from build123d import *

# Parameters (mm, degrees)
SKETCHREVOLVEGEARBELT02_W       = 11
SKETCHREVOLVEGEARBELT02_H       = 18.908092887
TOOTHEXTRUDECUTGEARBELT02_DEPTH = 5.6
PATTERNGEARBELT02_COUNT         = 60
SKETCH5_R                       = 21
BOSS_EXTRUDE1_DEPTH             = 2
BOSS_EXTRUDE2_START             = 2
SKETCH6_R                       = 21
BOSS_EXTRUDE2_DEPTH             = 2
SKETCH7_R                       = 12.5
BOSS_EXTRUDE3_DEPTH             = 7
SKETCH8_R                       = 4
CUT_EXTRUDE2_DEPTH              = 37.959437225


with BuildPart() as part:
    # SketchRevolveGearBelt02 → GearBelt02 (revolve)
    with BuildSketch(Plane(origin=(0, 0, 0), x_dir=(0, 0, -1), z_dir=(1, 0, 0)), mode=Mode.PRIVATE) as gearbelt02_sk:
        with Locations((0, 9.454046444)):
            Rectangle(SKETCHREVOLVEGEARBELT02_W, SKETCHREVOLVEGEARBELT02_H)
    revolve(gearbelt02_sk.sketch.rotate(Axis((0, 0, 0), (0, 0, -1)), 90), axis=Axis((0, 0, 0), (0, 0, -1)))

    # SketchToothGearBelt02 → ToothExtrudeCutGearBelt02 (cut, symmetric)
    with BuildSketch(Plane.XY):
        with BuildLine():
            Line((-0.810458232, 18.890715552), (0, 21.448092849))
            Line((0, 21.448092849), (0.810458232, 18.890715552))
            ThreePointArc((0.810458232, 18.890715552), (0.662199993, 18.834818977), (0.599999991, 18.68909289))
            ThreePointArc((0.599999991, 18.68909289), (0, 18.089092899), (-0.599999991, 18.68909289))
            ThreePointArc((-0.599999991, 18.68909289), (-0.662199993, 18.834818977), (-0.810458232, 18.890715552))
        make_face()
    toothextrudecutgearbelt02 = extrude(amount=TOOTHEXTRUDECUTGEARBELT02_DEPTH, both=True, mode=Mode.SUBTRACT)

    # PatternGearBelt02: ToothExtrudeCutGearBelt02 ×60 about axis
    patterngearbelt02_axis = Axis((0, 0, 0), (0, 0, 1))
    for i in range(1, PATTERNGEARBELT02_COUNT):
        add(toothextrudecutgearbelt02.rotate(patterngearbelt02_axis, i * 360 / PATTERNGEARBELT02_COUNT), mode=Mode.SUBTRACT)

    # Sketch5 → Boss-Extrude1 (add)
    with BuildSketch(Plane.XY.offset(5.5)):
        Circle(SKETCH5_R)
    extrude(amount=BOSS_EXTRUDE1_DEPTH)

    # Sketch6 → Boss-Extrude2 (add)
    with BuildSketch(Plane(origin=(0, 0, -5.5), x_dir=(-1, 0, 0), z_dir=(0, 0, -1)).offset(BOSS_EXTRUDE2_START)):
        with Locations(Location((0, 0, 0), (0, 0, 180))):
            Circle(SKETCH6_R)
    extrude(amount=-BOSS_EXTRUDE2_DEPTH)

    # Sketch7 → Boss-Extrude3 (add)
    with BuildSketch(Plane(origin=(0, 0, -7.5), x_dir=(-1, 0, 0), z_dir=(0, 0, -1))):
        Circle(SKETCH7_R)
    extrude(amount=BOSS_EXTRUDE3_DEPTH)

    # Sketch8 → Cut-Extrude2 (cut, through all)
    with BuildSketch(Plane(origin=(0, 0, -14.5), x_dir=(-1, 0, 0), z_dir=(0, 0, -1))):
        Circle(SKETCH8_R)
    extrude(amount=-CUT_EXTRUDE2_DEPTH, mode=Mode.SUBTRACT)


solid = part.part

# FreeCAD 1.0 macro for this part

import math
import FreeCAD as App
import Part
import Sketcher

V = App.Vector
Q = App.Units.Quantity


def add_polygon(sketch, points):
    """Adds a closed chain of lines whose ends are joined by coincident constraints."""
    first, n = sketch.GeometryCount, len(points)
    for a, b in zip(points, points[1:] + points[:1]):
        sketch.addGeometry(Part.LineSegment(App.Vector(*a, 0), App.Vector(*b, 0)), False)
    for i in range(n):
        sketch.addConstraint(Sketcher.Constraint("Coincident", first + i, 2, first + (i + 1) % n, 1))

doc = App.newDocument("Part")
body = doc.addObject("PartDesign::Body", "Body")

# Sketch on YZ plane
sketch1 = body.newObject("Sketcher::SketchObject", "Sketch")
sketch1.AttachmentSupport = (doc.getObject("YZ_Plane"), [""])
sketch1.MapMode = "FlatFace"
add_polygon(sketch1, [(19, 6), (0, 6), (0, -6), (19, -6)])  # lines 0-3
sketch1.addConstraint([
    Sketcher.Constraint("Horizontal", 0),
    Sketcher.Constraint("Vertical", 1),
    Sketcher.Constraint("Horizontal", 2),
    Sketcher.Constraint("Vertical", 3),
    Sketcher.Constraint("Symmetric", 0, 2, 1, 2, -1, 1),
    Sketcher.Constraint("DistanceY", 1, 2, 1, 1, Q("11 mm")),
    Sketcher.Constraint("DistanceX", 0, 2, 0, 1, Q("18.908093 mm")),
])
revolution = body.newObject("PartDesign::Revolution", "Revolution")
revolution.Profile = sketch1
revolution.ReferenceAxis = (sketch1, ["V_Axis"])
revolution.Angle = 360

# Sketch on XY plane
sketch2 = body.newObject("Sketcher::SketchObject", "Sketch001")
sketch2.AttachmentSupport = (doc.getObject("XY_Plane"), [""])
sketch2.MapMode = "FlatFace"
sketch2.addGeometry([
    Part.LineSegment(V(0, 21.45, 0), V(-0.81, 18.89, 0)),  # 0
    Part.ArcOfCircle(Part.Circle(V(-0.8, 18.69, 0), V(0, 0, 1), 0.2), math.radians(0), math.radians(92)),  # 1
    Part.ArcOfCircle(Part.Circle(V(0, 18.69, 0), V(0, 0, 1), 0.6), math.radians(180), math.radians(360)),  # 2
    Part.ArcOfCircle(Part.Circle(V(0.8, 18.69, 0), V(0, 0, 1), 0.2), math.radians(88), math.radians(180)),  # 3
    Part.LineSegment(V(0.81, 18.89, 0), V(0, 21.45, 0)),  # 4
], False)
sketch2.addConstraint([
    Sketcher.Constraint("Coincident", 0, 2, 1, 2),
    Sketcher.Constraint("Tangent", 1, 1, 2, 1),
    Sketcher.Constraint("Tangent", 2, 2, 3, 2),
    Sketcher.Constraint("Coincident", 3, 1, 4, 1),
    Sketcher.Constraint("Coincident", 4, 2, 0, 1),
    Sketcher.Constraint("Equal", 1, 3),
    Sketcher.Constraint("Symmetric", 1, 3, 3, 3, -2),
    Sketcher.Constraint("PointOnObject", 4, 2, -2),
    Sketcher.Constraint("Horizontal", 1, 3, 2, 3),
    Sketcher.Constraint("Horizontal", 0, 2, 3, 1),
    Sketcher.Constraint("Radius", 2, Q("0.6 mm")),
    Sketcher.Constraint("Radius", 1, Q("0.201808 mm")),
    Sketcher.Constraint("DistanceY", 2, 3, 4, 2, Q("2.759 mm")),
    Sketcher.Constraint("DistanceX", 0, 2, -1, 1, Q("0.810458 mm")),
    Sketcher.Constraint("DistanceY", -1, 1, 1, 3, Q("18.689093 mm")),
])
pocket1 = body.newObject("PartDesign::Pocket", "Pocket")
pocket1.Profile = sketch2
pocket1.Length = 11.2
pocket1.Midplane = True
doc.recompute()

polarpattern = body.newObject("PartDesign::PolarPattern", "PolarPattern")
polarpattern.Originals = [pocket1]
polarpattern.Axis = (doc.getObject("Z_Axis"), [""])
polarpattern.Angle = 360
polarpattern.Occurrences = 60
body.Tip = polarpattern

# Sketch on XY plane
sketch3 = body.newObject("Sketcher::SketchObject", "Sketch002")
sketch3.AttachmentSupport = (doc.getObject("XY_Plane"), [""])
sketch3.MapMode = "FlatFace"
sketch3.AttachmentOffset = App.Placement(V(0, 0, 5.5), App.Rotation())
sketch3.addGeometry(Part.Circle(V(0, 0, 0), V(0, 0, 1), 21), False)
sketch3.addConstraint([
    Sketcher.Constraint("Coincident", 0, 3, -1, 1),
    Sketcher.Constraint("Diameter", 0, Q("42 mm")),
])
pad1 = body.newObject("PartDesign::Pad", "Pad")
pad1.Profile = sketch3
pad1.Length = 2

# Sketch on XY plane
sketch4 = body.newObject("Sketcher::SketchObject", "Sketch003")
sketch4.AttachmentSupport = (doc.getObject("XY_Plane"), [""])
sketch4.MapMode = "FlatFace"
sketch4.AttachmentOffset = App.Placement(V(0, 0, -7.5), App.Rotation())
sketch4.addGeometry(Part.Circle(V(0, 0, 0), V(0, 0, 1), 21), False)
sketch4.addConstraint([
    Sketcher.Constraint("Coincident", 0, 3, -1, 1),
    Sketcher.Constraint("Diameter", 0, Q("42 mm")),
])
pad2 = body.newObject("PartDesign::Pad", "Pad001")
pad2.Profile = sketch4
pad2.Length = 2

# Sketch on XY plane
sketch5 = body.newObject("Sketcher::SketchObject", "Sketch004")
sketch5.AttachmentSupport = (doc.getObject("XY_Plane"), [""])
sketch5.MapMode = "FlatFace"
sketch5.AttachmentOffset = App.Placement(V(0, 0, -7.5), App.Rotation())
sketch5.addGeometry(Part.Circle(V(0, 0, 0), V(0, 0, 1), 12), False)
sketch5.addConstraint([
    Sketcher.Constraint("Coincident", 0, 3, -1, 1),
    Sketcher.Constraint("Diameter", 0, Q("25 mm")),
])
pad3 = body.newObject("PartDesign::Pad", "Pad002")
pad3.Profile = sketch5
pad3.Length = 7
pad3.Reversed = True

# Sketch on XY plane
sketch6 = body.newObject("Sketcher::SketchObject", "Sketch005")
sketch6.AttachmentSupport = (doc.getObject("XY_Plane"), [""])
sketch6.MapMode = "FlatFace"
sketch6.AttachmentOffset = App.Placement(V(0, 0, -14.5), App.Rotation())
sketch6.addGeometry(Part.Circle(V(0, 0, 0), V(0, 0, 1), 4), False)
sketch6.addConstraint([
    Sketcher.Constraint("Coincident", 0, 3, -1, 1),
    Sketcher.Constraint("Diameter", 0, Q("8 mm")),
])
pocket2 = body.newObject("PartDesign::Pocket", "Pocket001")
pocket2.Profile = sketch6
pocket2.Type = "ThroughAll"
pocket2.Reversed = True

doc.recompute()
